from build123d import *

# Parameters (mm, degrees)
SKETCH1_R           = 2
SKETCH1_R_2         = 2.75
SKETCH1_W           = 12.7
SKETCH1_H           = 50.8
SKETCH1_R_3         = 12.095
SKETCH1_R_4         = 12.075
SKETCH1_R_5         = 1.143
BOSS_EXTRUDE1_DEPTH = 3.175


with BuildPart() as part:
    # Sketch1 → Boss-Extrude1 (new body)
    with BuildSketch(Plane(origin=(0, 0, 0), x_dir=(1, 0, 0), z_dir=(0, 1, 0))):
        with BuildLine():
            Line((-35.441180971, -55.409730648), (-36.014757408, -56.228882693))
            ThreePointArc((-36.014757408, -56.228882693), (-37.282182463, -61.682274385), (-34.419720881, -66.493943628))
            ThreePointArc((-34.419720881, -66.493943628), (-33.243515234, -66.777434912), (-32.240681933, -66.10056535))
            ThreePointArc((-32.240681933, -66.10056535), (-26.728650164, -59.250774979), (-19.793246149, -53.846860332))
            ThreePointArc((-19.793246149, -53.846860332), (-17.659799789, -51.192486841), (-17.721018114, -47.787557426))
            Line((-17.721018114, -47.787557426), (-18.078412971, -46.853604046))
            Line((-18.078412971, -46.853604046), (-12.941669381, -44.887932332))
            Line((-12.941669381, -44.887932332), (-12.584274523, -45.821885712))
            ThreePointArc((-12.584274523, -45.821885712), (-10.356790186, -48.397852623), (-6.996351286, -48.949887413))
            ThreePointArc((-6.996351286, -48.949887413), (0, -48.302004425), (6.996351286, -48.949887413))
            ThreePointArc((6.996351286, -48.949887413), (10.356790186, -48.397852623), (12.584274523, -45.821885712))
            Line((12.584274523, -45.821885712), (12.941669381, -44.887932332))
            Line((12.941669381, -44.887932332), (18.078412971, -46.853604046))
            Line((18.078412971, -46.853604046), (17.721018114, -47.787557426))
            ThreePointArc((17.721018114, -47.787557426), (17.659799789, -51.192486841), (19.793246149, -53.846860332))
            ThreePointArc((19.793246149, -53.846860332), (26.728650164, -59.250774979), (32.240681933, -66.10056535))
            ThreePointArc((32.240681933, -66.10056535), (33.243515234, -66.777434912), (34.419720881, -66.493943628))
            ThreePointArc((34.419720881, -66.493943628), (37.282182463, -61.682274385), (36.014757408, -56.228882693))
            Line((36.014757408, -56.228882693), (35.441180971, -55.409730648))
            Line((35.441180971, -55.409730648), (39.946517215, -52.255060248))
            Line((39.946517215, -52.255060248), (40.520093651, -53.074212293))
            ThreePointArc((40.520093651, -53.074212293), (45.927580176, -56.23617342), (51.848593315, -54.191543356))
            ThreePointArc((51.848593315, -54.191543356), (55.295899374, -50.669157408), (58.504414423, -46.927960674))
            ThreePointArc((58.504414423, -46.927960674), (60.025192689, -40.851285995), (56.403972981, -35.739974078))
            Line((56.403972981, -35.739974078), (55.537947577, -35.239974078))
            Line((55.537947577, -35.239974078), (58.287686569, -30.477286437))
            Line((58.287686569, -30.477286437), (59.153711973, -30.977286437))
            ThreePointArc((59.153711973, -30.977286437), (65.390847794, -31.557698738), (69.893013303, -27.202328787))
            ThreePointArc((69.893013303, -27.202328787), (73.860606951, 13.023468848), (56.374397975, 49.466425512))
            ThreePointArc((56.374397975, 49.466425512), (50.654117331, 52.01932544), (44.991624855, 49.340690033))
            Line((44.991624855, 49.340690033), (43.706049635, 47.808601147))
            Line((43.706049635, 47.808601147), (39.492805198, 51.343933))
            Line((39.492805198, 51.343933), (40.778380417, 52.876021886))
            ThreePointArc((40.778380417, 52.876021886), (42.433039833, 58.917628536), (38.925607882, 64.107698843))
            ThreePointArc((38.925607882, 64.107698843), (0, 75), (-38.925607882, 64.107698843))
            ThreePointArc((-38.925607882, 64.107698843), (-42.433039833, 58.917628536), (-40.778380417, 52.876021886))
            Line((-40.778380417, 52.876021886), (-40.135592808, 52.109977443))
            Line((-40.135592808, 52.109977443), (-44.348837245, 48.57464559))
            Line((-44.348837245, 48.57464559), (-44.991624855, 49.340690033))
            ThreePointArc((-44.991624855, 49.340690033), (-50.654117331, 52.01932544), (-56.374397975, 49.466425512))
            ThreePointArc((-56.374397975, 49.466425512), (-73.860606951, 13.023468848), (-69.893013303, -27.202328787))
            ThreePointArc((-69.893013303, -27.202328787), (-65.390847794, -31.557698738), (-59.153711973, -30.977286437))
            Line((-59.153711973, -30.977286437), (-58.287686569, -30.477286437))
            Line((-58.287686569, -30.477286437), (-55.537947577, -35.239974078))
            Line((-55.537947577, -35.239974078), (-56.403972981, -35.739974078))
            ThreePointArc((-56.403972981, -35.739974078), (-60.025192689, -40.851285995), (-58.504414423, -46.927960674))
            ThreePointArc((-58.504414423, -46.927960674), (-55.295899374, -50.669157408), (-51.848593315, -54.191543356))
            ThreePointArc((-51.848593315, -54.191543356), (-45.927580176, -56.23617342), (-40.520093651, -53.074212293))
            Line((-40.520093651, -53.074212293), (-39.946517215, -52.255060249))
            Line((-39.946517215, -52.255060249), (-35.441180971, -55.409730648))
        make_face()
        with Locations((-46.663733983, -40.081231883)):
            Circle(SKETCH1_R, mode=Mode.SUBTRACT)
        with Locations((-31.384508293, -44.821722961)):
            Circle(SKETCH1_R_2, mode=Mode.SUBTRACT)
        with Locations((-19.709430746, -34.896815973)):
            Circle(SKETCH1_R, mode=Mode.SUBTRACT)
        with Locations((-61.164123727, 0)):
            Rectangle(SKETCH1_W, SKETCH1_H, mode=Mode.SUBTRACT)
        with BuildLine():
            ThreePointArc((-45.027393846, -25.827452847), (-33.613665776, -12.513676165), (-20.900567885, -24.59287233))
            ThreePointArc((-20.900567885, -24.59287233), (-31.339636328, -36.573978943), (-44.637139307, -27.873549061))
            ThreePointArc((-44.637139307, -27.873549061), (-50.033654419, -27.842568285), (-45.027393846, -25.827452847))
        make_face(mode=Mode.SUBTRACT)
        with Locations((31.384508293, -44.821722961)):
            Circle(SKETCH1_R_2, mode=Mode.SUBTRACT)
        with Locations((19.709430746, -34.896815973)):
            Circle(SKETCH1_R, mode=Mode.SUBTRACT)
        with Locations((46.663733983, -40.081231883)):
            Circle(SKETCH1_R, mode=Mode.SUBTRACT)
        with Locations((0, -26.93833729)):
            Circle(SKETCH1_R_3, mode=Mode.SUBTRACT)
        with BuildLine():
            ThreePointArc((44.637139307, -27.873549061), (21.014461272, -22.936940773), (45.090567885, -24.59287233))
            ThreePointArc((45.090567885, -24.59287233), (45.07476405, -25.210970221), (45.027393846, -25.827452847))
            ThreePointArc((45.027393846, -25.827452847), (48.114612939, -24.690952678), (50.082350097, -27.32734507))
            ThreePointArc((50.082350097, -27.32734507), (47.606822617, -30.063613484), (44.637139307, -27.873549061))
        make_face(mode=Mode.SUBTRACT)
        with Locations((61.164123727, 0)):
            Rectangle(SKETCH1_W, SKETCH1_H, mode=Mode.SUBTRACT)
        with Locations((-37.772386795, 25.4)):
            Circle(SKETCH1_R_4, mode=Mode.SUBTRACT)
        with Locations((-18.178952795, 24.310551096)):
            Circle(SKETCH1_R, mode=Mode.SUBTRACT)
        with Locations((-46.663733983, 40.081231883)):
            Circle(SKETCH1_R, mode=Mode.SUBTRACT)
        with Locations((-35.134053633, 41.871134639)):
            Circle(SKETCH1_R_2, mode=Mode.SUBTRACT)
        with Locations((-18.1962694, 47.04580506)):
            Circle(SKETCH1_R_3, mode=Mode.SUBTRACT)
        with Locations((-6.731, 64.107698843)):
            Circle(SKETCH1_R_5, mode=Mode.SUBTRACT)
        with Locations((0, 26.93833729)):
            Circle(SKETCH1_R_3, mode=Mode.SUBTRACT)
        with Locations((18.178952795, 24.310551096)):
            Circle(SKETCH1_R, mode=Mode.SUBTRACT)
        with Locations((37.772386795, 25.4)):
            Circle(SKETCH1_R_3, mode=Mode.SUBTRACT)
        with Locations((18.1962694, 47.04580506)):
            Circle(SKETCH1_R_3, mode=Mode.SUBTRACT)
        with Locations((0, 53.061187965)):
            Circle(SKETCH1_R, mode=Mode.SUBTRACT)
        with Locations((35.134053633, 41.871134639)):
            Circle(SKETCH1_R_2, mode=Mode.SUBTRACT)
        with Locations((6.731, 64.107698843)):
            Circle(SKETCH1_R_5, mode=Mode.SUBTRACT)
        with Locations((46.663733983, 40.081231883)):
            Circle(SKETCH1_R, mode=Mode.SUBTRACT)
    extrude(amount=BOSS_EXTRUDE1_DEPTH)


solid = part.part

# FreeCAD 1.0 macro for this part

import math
import FreeCAD as App
import Part
import Sketcher
from FreeCAD import Vector
Q = App.Units.Quantity


def add_polygon(sketch, points):
    """Adds a closed chain of lines whose ends are joined by coincident constraints."""
    first, n = sketch.GeometryCount, len(points)
    for a, b in zip(points, points[1:] + points[:1]):
        sketch.addGeometry(Part.LineSegment(App.Vector(*a, 0), App.Vector(*b, 0)), False)
    for i in range(n):
        sketch.addConstraint(Sketcher.Constraint("Coincident", first + i, 2, first + (i + 1) % n, 1))

doc = App.newDocument("Part")
body = doc.addObject("PartDesign::Body", "Body")

# Sketch on XZ plane
sketch1 = body.newObject("Sketcher::SketchObject", "Sketch")
sketch1.AttachmentSupport = (doc.getObject("XZ_Plane"), [""])
sketch1.MapMode = "FlatFace"
sketch1.addGeometry(Part.LineSegment(Vector(-35.4, 55.4, 0), Vector(-36, 56.2, 0)), False)  # 0
sketch1.addGeometry(Part.ArcOfCircle(Part.Circle(Vector(-29.9, 60.5, 0), Vector(0, 0, 1), 7.5), math.radians(127), math.radians(215)), False)  # 1
sketch1.addGeometry(Part.ArcOfCircle(Part.Circle(Vector(-33.5, 65.3, 0), Vector(0, 0, 1), 1.5), math.radians(32), math.radians(127)), False)  # 2
sketch1.addGeometry(Part.ArcOfCircle(Part.Circle(Vector(0, 86.4, 0), Vector(0, 0, 1), 38.1), math.radians(-148), math.radians(-121)), False)  # 3
sketch1.addGeometry(Part.ArcOfCircle(Part.Circle(Vector(-22.4, 49.6, 0), Vector(0, 0, 1), 5), math.radians(-21), math.radians(59)), False)  # 4
sketch1.addGeometry(Part.LineSegment(Vector(-17.7, 47.8, 0), Vector(-18.1, 46.9, 0)), False)  # 5
sketch1.addGeometry(Part.LineSegment(Vector(-18.1, 46.9, 0), Vector(-12.9, 44.9, 0)), False)  # 6
sketch1.addGeometry(Part.LineSegment(Vector(-12.9, 44.9, 0), Vector(-12.6, 45.8, 0)), False)  # 7
sketch1.addGeometry(Part.ArcOfCircle(Part.Circle(Vector(-7.9, 44, 0), Vector(0, 0, 1), 5), math.radians(79), math.radians(159)), False)  # 8
sketch1.addGeometry(Part.ArcOfCircle(Part.Circle(Vector(0, 86.4, 0), Vector(0, 0, 1), 38.1), math.radians(-101), math.radians(-79)), False)  # 9
sketch1.addGeometry(Part.ArcOfCircle(Part.Circle(Vector(7.9, 44, 0), Vector(0, 0, 1), 5), math.radians(21), math.radians(101)), False)  # 10
sketch1.addGeometry(Part.LineSegment(Vector(12.6, 45.8, 0), Vector(12.9, 44.9, 0)), False)  # 11
sketch1.addGeometry(Part.LineSegment(Vector(12.9, 44.9, 0), Vector(18.1, 46.9, 0)), False)  # 12
sketch1.addGeometry(Part.LineSegment(Vector(18.1, 46.9, 0), Vector(17.7, 47.8, 0)), False)  # 13
sketch1.addGeometry(Part.ArcOfCircle(Part.Circle(Vector(22.4, 49.6, 0), Vector(0, 0, 1), 5), math.radians(121), math.radians(201)), False)  # 14
sketch1.addGeometry(Part.ArcOfCircle(Part.Circle(Vector(0, 86.4, 0), Vector(0, 0, 1), 38.1), math.radians(-59), math.radians(-32)), False)  # 15
sketch1.addGeometry(Part.ArcOfCircle(Part.Circle(Vector(33.5, 65.3, 0), Vector(0, 0, 1), 1.5), math.radians(53), math.radians(148)), False)  # 16
sketch1.addGeometry(Part.ArcOfCircle(Part.Circle(Vector(29.9, 60.5, 0), Vector(0, 0, 1), 7.5), math.radians(-35), math.radians(53)), False)  # 17
sketch1.addGeometry(Part.LineSegment(Vector(36, 56.2, 0), Vector(35.4, 55.4, 0)), False)  # 18
sketch1.addGeometry(Part.LineSegment(Vector(35.4, 55.4, 0), Vector(39.9, 52.3, 0)), False)  # 19
sketch1.addGeometry(Part.LineSegment(Vector(39.9, 52.3, 0), Vector(40.5, 53.1, 0)), False)  # 20
sketch1.addGeometry(Part.ArcOfCircle(Part.Circle(Vector(46.7, 48.8, 0), Vector(0, 0, 1), 7.5), math.radians(46), math.radians(145)), False)  # 21
sketch1.addGeometry(Part.ArcOfCircle(Part.Circle(Vector(0, 0, 0), Vector(0, 0, 1), 75), math.radians(38.73), math.radians(46.27)), False)  # 22
sketch1.addGeometry(Part.ArcOfCircle(Part.Circle(Vector(52.7, 42.2, 0), Vector(0, 0, 1), 7.5), math.radians(-60), math.radians(39)), False)  # 23
sketch1.addGeometry(Part.LineSegment(Vector(56.4, 35.7, 0), Vector(55.5, 35.2, 0)), False)  # 24
sketch1.addGeometry(Part.LineSegment(Vector(55.5, 35.2, 0), Vector(58.3, 30.5, 0)), False)  # 25
sketch1.addGeometry(Part.LineSegment(Vector(58.3, 30.5, 0), Vector(59.2, 31, 0)), False)  # 26
sketch1.addGeometry(Part.ArcOfCircle(Part.Circle(Vector(62.9, 24.5, 0), Vector(0, 0, 1), 7.5), math.radians(21), math.radians(120)), False)  # 27
sketch1.addGeometry(Part.ArcOfCircle(Part.Circle(Vector(0, 0, 0), Vector(0, 0, 1), 75), math.radians(-41), math.radians(21)), False)  # 28
sketch1.addGeometry(Part.ArcOfCircle(Part.Circle(Vector(50.7, -44.5, 0), Vector(0, 0, 1), 7.5), math.radians(-140), math.radians(-41)), False)  # 29
sketch1.addGeometry(Part.LineSegment(Vector(45, -49.3, 0), Vector(43.7, -47.8, 0)), False)  # 30
sketch1.addGeometry(Part.LineSegment(Vector(43.7, -47.8, 0), Vector(39.5, -51.3, 0)), False)  # 31
sketch1.addGeometry(Part.LineSegment(Vector(39.5, -51.3, 0), Vector(40.8, -52.9, 0)), False)  # 32
sketch1.addGeometry(Part.ArcOfCircle(Part.Circle(Vector(35, -57.7, 0), Vector(0, 0, 1), 7.5), math.radians(-59), math.radians(40)), False)  # 33
sketch1.addGeometry(Part.ArcOfCircle(Part.Circle(Vector(0, 0, 0), Vector(0, 0, 1), 75), math.radians(-121), math.radians(-59)), False)  # 34
sketch1.addGeometry(Part.ArcOfCircle(Part.Circle(Vector(-35, -57.7, 0), Vector(0, 0, 1), 7.5), math.radians(140), math.radians(239)), False)  # 35
sketch1.addGeometry(Part.LineSegment(Vector(-40.8, -52.9, 0), Vector(-40.1, -52.1, 0)), False)  # 36
sketch1.addGeometry(Part.LineSegment(Vector(-40.1, -52.1, 0), Vector(-44.3, -48.6, 0)), False)  # 37
sketch1.addGeometry(Part.LineSegment(Vector(-44.3, -48.6, 0), Vector(-45, -49.3, 0)), False)  # 38
sketch1.addGeometry(Part.ArcOfCircle(Part.Circle(Vector(-50.7, -44.5, 0), Vector(0, 0, 1), 7.5), math.radians(-139), math.radians(-40)), False)  # 39
sketch1.addGeometry(Part.ArcOfCircle(Part.Circle(Vector(0, 0, 0), Vector(0, 0, 1), 75), math.radians(159), math.radians(221)), False)  # 40
sketch1.addGeometry(Part.ArcOfCircle(Part.Circle(Vector(-62.9, 24.5, 0), Vector(0, 0, 1), 7.5), math.radians(60), math.radians(159)), False)  # 41
sketch1.addGeometry(Part.LineSegment(Vector(-59.2, 31, 0), Vector(-58.3, 30.5, 0)), False)  # 42
sketch1.addGeometry(Part.LineSegment(Vector(-58.3, 30.5, 0), Vector(-55.5, 35.2, 0)), False)  # 43
sketch1.addGeometry(Part.LineSegment(Vector(-55.5, 35.2, 0), Vector(-56.4, 35.7, 0)), False)  # 44
sketch1.addGeometry(Part.ArcOfCircle(Part.Circle(Vector(-52.7, 42.2, 0), Vector(0, 0, 1), 7.5), math.radians(141), math.radians(240)), False)  # 45
sketch1.addGeometry(Part.ArcOfCircle(Part.Circle(Vector(0, 0, 0), Vector(0, 0, 1), 75), math.radians(133.73), math.radians(141.27)), False)  # 46
sketch1.addGeometry(Part.ArcOfCircle(Part.Circle(Vector(-46.7, 48.8, 0), Vector(0, 0, 1), 7.5), math.radians(35), math.radians(134)), False)  # 47
sketch1.addGeometry(Part.LineSegment(Vector(-40.5, 53.1, 0), Vector(-39.9, 52.3, 0)), False)  # 48
sketch1.addGeometry(Part.LineSegment(Vector(-39.9, 52.3, 0), Vector(-35.4, 55.4, 0)), False)  # 49
sketch1.addGeometry(Part.Circle(Vector(-46.7, 40.1, 0), Vector(0, 0, 1), 2), False)  # 50
sketch1.addGeometry(Part.ArcOfCircle(Part.Circle(Vector(-47.3, 27.3, 0), Vector(0, 0, 1), 2.8), math.radians(11), math.radians(327)), False)  # 51
sketch1.addGeometry(Part.ArcOfCircle(Part.Circle(Vector(-33, 24.6, 0), Vector(0, 0, 1), 12.1), math.radians(174), math.radians(360)), False)  # 52
sketch1.addGeometry(Part.ArcOfCircle(Part.Circle(Vector(-33, 24.6, 0), Vector(0, 0, 1), 12.1), math.radians(0), math.radians(164)), False)  # 53
sketch1.addGeometry(Part.Circle(Vector(-31.4, 44.8, 0), Vector(0, 0, 1), 2.8), False)  # 54
sketch1.addGeometry(Part.Circle(Vector(-19.7, 34.9, 0), Vector(0, 0, 1), 2), False)  # 55
add_polygon(sketch1, [(-54.8, 25.4), (-67.5, 25.4), (-67.5, -25.4), (-54.8, -25.4)])  # lines 56-59
sketch1.addGeometry(Part.Circle(Vector(31.4, 44.8, 0), Vector(0, 0, 1), 2.8), False)  # 60
sketch1.addGeometry(Part.Circle(Vector(19.7, 34.9, 0), Vector(0, 0, 1), 2), False)  # 61
sketch1.addGeometry(Part.Circle(Vector(0, 26.9, 0), Vector(0, 0, 1), 12.1), False)  # 62
sketch1.addGeometry(Part.Circle(Vector(46.7, 40.1, 0), Vector(0, 0, 1), 2), False)  # 63
sketch1.addGeometry(Part.ArcOfCircle(Part.Circle(Vector(47.3, 27.3, 0), Vector(0, 0, 1), 2.8), math.radians(0), math.radians(169)), False)  # 64
sketch1.addGeometry(Part.ArcOfCircle(Part.Circle(Vector(33, 24.6, 0), Vector(0, 0, 1), 12.1), math.radians(16), math.radians(360)), False)  # 65
sketch1.addGeometry(Part.ArcOfCircle(Part.Circle(Vector(33, 24.6, 0), Vector(0, 0, 1), 12.1), math.radians(0), math.radians(5.86)), False)  # 66
sketch1.addGeometry(Part.ArcOfCircle(Part.Circle(Vector(47.3, 27.3, 0), Vector(0, 0, 1), 2.8), math.radians(-147), math.radians(0)), False)  # 67
add_polygon(sketch1, [(67.5, 25.4), (54.8, 25.4), (54.8, -25.4), (67.5, -25.4)])  # lines 68-71
sketch1.addGeometry(Part.Circle(Vector(-37.8, -25.4, 0), Vector(0, 0, 1), 12.1), False)  # 72
sketch1.addGeometry(Part.Circle(Vector(-18.2, -24.3, 0), Vector(0, 0, 1), 2), False)  # 73
sketch1.addGeometry(Part.Circle(Vector(-46.7, -40.1, 0), Vector(0, 0, 1), 2), False)  # 74
sketch1.addGeometry(Part.Circle(Vector(-35.1, -41.9, 0), Vector(0, 0, 1), 2.8), False)  # 75
sketch1.addGeometry(Part.Circle(Vector(-18.2, -47, 0), Vector(0, 0, 1), 12.1), False)  # 76
sketch1.addGeometry(Part.Circle(Vector(-6.7, -64.1, 0), Vector(0, 0, 1), 1.1), False)  # 77
sketch1.addGeometry(Part.Circle(Vector(0, -26.9, 0), Vector(0, 0, 1), 12.1), False)  # 78
sketch1.addGeometry(Part.Circle(Vector(18.2, -24.3, 0), Vector(0, 0, 1), 2), False)  # 79
sketch1.addGeometry(Part.Circle(Vector(37.8, -25.4, 0), Vector(0, 0, 1), 12.1), False)  # 80
sketch1.addGeometry(Part.Circle(Vector(18.2, -47, 0), Vector(0, 0, 1), 12.1), False)  # 81
sketch1.addGeometry(Part.Circle(Vector(0, -53.1, 0), Vector(0, 0, 1), 2), False)  # 82
sketch1.addGeometry(Part.Circle(Vector(6.7, -64.1, 0), Vector(0, 0, 1), 1.1), False)  # 83
sketch1.addGeometry(Part.Circle(Vector(35.1, -41.9, 0), Vector(0, 0, 1), 2.8), False)  # 84
sketch1.addGeometry(Part.Circle(Vector(46.7, -40.1, 0), Vector(0, 0, 1), 2), False)  # 85
sketch1.addConstraint(Sketcher.Constraint("Tangent", 0, 2, 1, 2))
sketch1.addConstraint(Sketcher.Constraint("Tangent", 1, 1, 2, 2))
sketch1.addConstraint(Sketcher.Constraint("Tangent", 2, 1, 3, 1))
sketch1.addConstraint(Sketcher.Constraint("Tangent", 3, 2, 4, 2))
sketch1.addConstraint(Sketcher.Constraint("Tangent", 4, 1, 5, 1))
sketch1.addConstraint(Sketcher.Constraint("Coincident", 5, 2, 6, 1))
sketch1.addConstraint(Sketcher.Constraint("Coincident", 6, 2, 7, 1))
sketch1.addConstraint(Sketcher.Constraint("Tangent", 7, 2, 8, 2))
sketch1.addConstraint(Sketcher.Constraint("Tangent", 8, 1, 9, 1))
sketch1.addConstraint(Sketcher.Constraint("Tangent", 9, 2, 10, 2))
sketch1.addConstraint(Sketcher.Constraint("Tangent", 10, 1, 11, 1))
sketch1.addConstraint(Sketcher.Constraint("Coincident", 11, 2, 12, 1))
sketch1.addConstraint(Sketcher.Constraint("Coincident", 12, 2, 13, 1))
sketch1.addConstraint(Sketcher.Constraint("Tangent", 13, 2, 14, 2))
sketch1.addConstraint(Sketcher.Constraint("Tangent", 14, 1, 15, 1))
sketch1.addConstraint(Sketcher.Constraint("Tangent", 15, 2, 16, 2))
sketch1.addConstraint(Sketcher.Constraint("Tangent", 16, 1, 17, 2))
sketch1.addConstraint(Sketcher.Constraint("Tangent", 17, 1, 18, 1))
sketch1.addConstraint(Sketcher.Constraint("Coincident", 18, 2, 19, 1))
sketch1.addConstraint(Sketcher.Constraint("Coincident", 19, 2, 20, 1))
sketch1.addConstraint(Sketcher.Constraint("Tangent", 20, 2, 21, 2))
sketch1.addConstraint(Sketcher.Constraint("Tangent", 21, 1, 22, 2))
sketch1.addConstraint(Sketcher.Constraint("Tangent", 22, 1, 23, 2))
sketch1.addConstraint(Sketcher.Constraint("Tangent", 23, 1, 24, 1))
sketch1.addConstraint(Sketcher.Constraint("Coincident", 24, 2, 25, 1))
sketch1.addConstraint(Sketcher.Constraint("Coincident", 25, 2, 26, 1))
sketch1.addConstraint(Sketcher.Constraint("Tangent", 26, 2, 27, 2))
sketch1.addConstraint(Sketcher.Constraint("Tangent", 27, 1, 28, 2))
sketch1.addConstraint(Sketcher.Constraint("Tangent", 28, 1, 29, 2))
sketch1.addConstraint(Sketcher.Constraint("Tangent", 29, 1, 30, 1))
sketch1.addConstraint(Sketcher.Constraint("Coincident", 30, 2, 31, 1))
sketch1.addConstraint(Sketcher.Constraint("Coincident", 31, 2, 32, 1))
sketch1.addConstraint(Sketcher.Constraint("Tangent", 32, 2, 33, 2))
sketch1.addConstraint(Sketcher.Constraint("Tangent", 33, 1, 34, 2))
sketch1.addConstraint(Sketcher.Constraint("Tangent", 34, 1, 35, 2))
sketch1.addConstraint(Sketcher.Constraint("Tangent", 35, 1, 36, 1))
sketch1.addConstraint(Sketcher.Constraint("Coincident", 36, 2, 37, 1))
sketch1.addConstraint(Sketcher.Constraint("Coincident", 37, 2, 38, 1))
sketch1.addConstraint(Sketcher.Constraint("Tangent", 38, 2, 39, 2))
sketch1.addConstraint(Sketcher.Constraint("Tangent", 39, 1, 40, 2))
sketch1.addConstraint(Sketcher.Constraint("Tangent", 40, 1, 41, 2))
sketch1.addConstraint(Sketcher.Constraint("Tangent", 41, 1, 42, 1))
sketch1.addConstraint(Sketcher.Constraint("Coincident", 42, 2, 43, 1))
sketch1.addConstraint(Sketcher.Constraint("Coincident", 43, 2, 44, 1))
sketch1.addConstraint(Sketcher.Constraint("Tangent", 44, 2, 45, 2))
sketch1.addConstraint(Sketcher.Constraint("Tangent", 45, 1, 46, 2))
sketch1.addConstraint(Sketcher.Constraint("Tangent", 46, 1, 47, 2))
sketch1.addConstraint(Sketcher.Constraint("Tangent", 47, 1, 48, 1))
sketch1.addConstraint(Sketcher.Constraint("Coincident", 48, 2, 49, 1))
sketch1.addConstraint(Sketcher.Constraint("Coincident", 49, 2, 0, 1))
sketch1.addConstraint(Sketcher.Constraint("Coincident", 51, 2, 52, 1))
sketch1.addConstraint(Sketcher.Constraint("Tangent", 52, 2, 53, 1))
sketch1.addConstraint(Sketcher.Constraint("Coincident", 53, 2, 51, 1))
sketch1.addConstraint(Sketcher.Constraint("Coincident", 64, 2, 65, 1))
sketch1.addConstraint(Sketcher.Constraint("Tangent", 65, 2, 66, 1))
sketch1.addConstraint(Sketcher.Constraint("Coincident", 66, 2, 67, 1))
sketch1.addConstraint(Sketcher.Constraint("Tangent", 67, 2, 64, 1))
sketch1.addConstraint(Sketcher.Constraint("Horizontal", 56))
sketch1.addConstraint(Sketcher.Constraint("Vertical", 57))
sketch1.addConstraint(Sketcher.Constraint("Horizontal", 58))
sketch1.addConstraint(Sketcher.Constraint("Vertical", 59))
sketch1.addConstraint(Sketcher.Constraint("Horizontal", 68))
sketch1.addConstraint(Sketcher.Constraint("Vertical", 69))
sketch1.addConstraint(Sketcher.Constraint("Horizontal", 70))
sketch1.addConstraint(Sketcher.Constraint("Vertical", 71))
sketch1.addConstraint(Sketcher.Constraint("Coincident", 22, 3, -1, 1))
sketch1.addConstraint(Sketcher.Constraint("Coincident", 28, 3, -1, 1))
sketch1.addConstraint(Sketcher.Constraint("Coincident", 34, 3, -1, 1))
sketch1.addConstraint(Sketcher.Constraint("Coincident", 40, 3, -1, 1))
sketch1.addConstraint(Sketcher.Constraint("Coincident", 46, 3, -1, 1))
sketch1.addConstraint(Sketcher.Constraint("Coincident", 9, 3, 3, 3))
sketch1.addConstraint(Sketcher.Constraint("Coincident", 15, 3, 3, 3))
sketch1.addConstraint(Sketcher.Constraint("Equal", 4, 8))
sketch1.addConstraint(Sketcher.Constraint("Equal", 3, 9))
sketch1.addConstraint(Sketcher.Constraint("Equal", 8, 10))
sketch1.addConstraint(Sketcher.Constraint("Equal", 10, 14))
sketch1.addConstraint(Sketcher.Constraint("Equal", 9, 15))
sketch1.addConstraint(Sketcher.Constraint("Equal", 2, 16))
sketch1.addConstraint(Sketcher.Constraint("Equal", 1, 17))
sketch1.addConstraint(Sketcher.Constraint("Equal", 17, 21))
sketch1.addConstraint(Sketcher.Constraint("Equal", 21, 23))
sketch1.addConstraint(Sketcher.Constraint("Equal", 23, 27))
sketch1.addConstraint(Sketcher.Constraint("Equal", 22, 28))
sketch1.addConstraint(Sketcher.Constraint("Equal", 27, 29))
sketch1.addConstraint(Sketcher.Constraint("Equal", 29, 33))
sketch1.addConstraint(Sketcher.Constraint("Equal", 28, 34))
sketch1.addConstraint(Sketcher.Constraint("Equal", 33, 35))
sketch1.addConstraint(Sketcher.Constraint("Equal", 35, 39))
sketch1.addConstraint(Sketcher.Constraint("Equal", 34, 40))
sketch1.addConstraint(Sketcher.Constraint("Equal", 39, 41))
sketch1.addConstraint(Sketcher.Constraint("Equal", 41, 45))
sketch1.addConstraint(Sketcher.Constraint("Equal", 40, 46))
sketch1.addConstraint(Sketcher.Constraint("Equal", 45, 47))
sketch1.addConstraint(Sketcher.Constraint("Equal", 52, 53))
sketch1.addConstraint(Sketcher.Constraint("Equal", 51, 54))
sketch1.addConstraint(Sketcher.Constraint("Equal", 50, 55))
sketch1.addConstraint(Sketcher.Constraint("Equal", 54, 60))
sketch1.addConstraint(Sketcher.Constraint("Equal", 55, 61))
sketch1.addConstraint(Sketcher.Constraint("Equal", 53, 62))
sketch1.addConstraint(Sketcher.Constraint("Equal", 61, 63))
sketch1.addConstraint(Sketcher.Constraint("Equal", 60, 64))
sketch1.addConstraint(Sketcher.Constraint("Equal", 62, 65))
sketch1.addConstraint(Sketcher.Constraint("Equal", 65, 66))
sketch1.addConstraint(Sketcher.Constraint("Equal", 64, 67))
sketch1.addConstraint(Sketcher.Constraint("Equal", 63, 73))
sketch1.addConstraint(Sketcher.Constraint("Equal", 73, 74))
sketch1.addConstraint(Sketcher.Constraint("Equal", 67, 75))
sketch1.addConstraint(Sketcher.Constraint("Equal", 66, 76))
sketch1.addConstraint(Sketcher.Constraint("Equal", 76, 78))
sketch1.addConstraint(Sketcher.Constraint("Equal", 74, 79))
sketch1.addConstraint(Sketcher.Constraint("Equal", 78, 80))
sketch1.addConstraint(Sketcher.Constraint("Equal", 80, 81))
sketch1.addConstraint(Sketcher.Constraint("Equal", 79, 82))
sketch1.addConstraint(Sketcher.Constraint("Equal", 77, 83))
sketch1.addConstraint(Sketcher.Constraint("Equal", 75, 84))
sketch1.addConstraint(Sketcher.Constraint("Equal", 82, 85))
sketch1.addConstraint(Sketcher.Constraint("Symmetric", 63, 3, 74, 3, -1, 1))
sketch1.addConstraint(Sketcher.Constraint("Symmetric", 62, 3, 78, 3, -1, 1))
sketch1.addConstraint(Sketcher.Constraint("Symmetric", 50, 3, 85, 3, -1, 1))
sketch1.addConstraint(Sketcher.Constraint("Symmetric", 58, 2, 68, 2, -1, 1))
sketch1.addConstraint(Sketcher.Constraint("Symmetric", 56, 2, 70, 2, -1, 1))
sketch1.addConstraint(Sketcher.Constraint("Symmetric", 8, 3, 10, 3, -2))
sketch1.addConstraint(Sketcher.Constraint("Symmetric", 1, 3, 17, 3, -2))
sketch1.addConstraint(Sketcher.Constraint("Symmetric", 54, 3, 60, 3, -2))
sketch1.addConstraint(Sketcher.Constraint("Symmetric", 55, 3, 61, 3, -2))
sketch1.addConstraint(Sketcher.Constraint("Symmetric", 50, 3, 63, 3, -2))
sketch1.addConstraint(Sketcher.Constraint("Symmetric", 51, 3, 64, 3, -2))
sketch1.addConstraint(Sketcher.Constraint("Symmetric", 52, 3, 65, 3, -2))
sketch1.addConstraint(Sketcher.Constraint("Symmetric", 73, 3, 79, 3, -2))
sketch1.addConstraint(Sketcher.Constraint("Symmetric", 72, 3, 80, 3, -2))
sketch1.addConstraint(Sketcher.Constraint("Symmetric", 76, 3, 81, 3, -2))
sketch1.addConstraint(Sketcher.Constraint("Symmetric", 77, 3, 83, 3, -2))
sketch1.addConstraint(Sketcher.Constraint("Symmetric", 75, 3, 84, 3, -2))
sketch1.addConstraint(Sketcher.Constraint("Symmetric", 6, 2, 11, 2, -2))
sketch1.addConstraint(Sketcher.Constraint("Symmetric", 5, 2, 12, 2, -2))
sketch1.addConstraint(Sketcher.Constraint("Symmetric", 32, 2, 35, 1, -2))
sketch1.addConstraint(Sketcher.Constraint("Symmetric", 29, 1, 38, 2, -2))
sketch1.addConstraint(Sketcher.Constraint("Symmetric", 26, 2, 41, 1, -2))
sketch1.addConstraint(Sketcher.Constraint("Symmetric", 24, 2, 43, 2, -2))
sketch1.addConstraint(Sketcher.Constraint("Symmetric", 20, 2, 47, 1, -2))
sketch1.addConstraint(Sketcher.Constraint("Symmetric", 18, 2, 49, 2, -2))
sketch1.addConstraint(Sketcher.Constraint("PointOnObject", 62, 3, -2))
sketch1.addConstraint(Sketcher.Constraint("PointOnObject", 82, 3, -2))
sketch1.addConstraint(Sketcher.Constraint("Perpendicular", 5, 6))
sketch1.addConstraint(Sketcher.Constraint("Perpendicular", 6, 7))
sketch1.addConstraint(Sketcher.Constraint("Perpendicular", 12, 13))
sketch1.addConstraint(Sketcher.Constraint("Perpendicular", 18, 19))
sketch1.addConstraint(Sketcher.Constraint("Perpendicular", 19, 20))
sketch1.addConstraint(Sketcher.Constraint("Perpendicular", 24, 25))
sketch1.addConstraint(Sketcher.Constraint("Perpendicular", 25, 26))
sketch1.addConstraint(Sketcher.Constraint("Perpendicular", 30, 31))
sketch1.addConstraint(Sketcher.Constraint("Perpendicular", 31, 32))
sketch1.addConstraint(Sketcher.Constraint("Perpendicular", 36, 37))
sketch1.addConstraint(Sketcher.Constraint("Perpendicular", 42, 43))
sketch1.addConstraint(Sketcher.Constraint("Perpendicular", 43, 44))
sketch1.addConstraint(Sketcher.Constraint("Perpendicular", 48, 49))
sketch1.addConstraint(Sketcher.Constraint("Horizontal", 83, 3, 33, 1))
sketch1.addConstraint(Sketcher.Constraint("Horizontal", 66, 3, 52, 2))
sketch1.addConstraint(Sketcher.Constraint("Horizontal", 80, 3, 57, 2))
sketch1.addConstraint(Sketcher.Constraint("Horizontal", 52, 2, 65, 2))
sketch1.addConstraint(Sketcher.Constraint("Horizontal", 64, 3, 67, 2))
sketch1.addConstraint(Sketcher.Constraint("Horizontal", 59, 2, 68, 2))
sketch1.addConstraint(Sketcher.Constraint("Vertical", 47, 3, 50, 3))
sketch1.addConstraint(Sketcher.Constraint("Equal", 0, 5))
sketch1.addConstraint(Sketcher.Constraint("Equal", 5, 7))
sketch1.addConstraint(Sketcher.Constraint("Equal", 12, 19))
sketch1.addConstraint(Sketcher.Constraint("Equal", 18, 20))
sketch1.addConstraint(Sketcher.Constraint("Equal", 20, 24))
sketch1.addConstraint(Sketcher.Constraint("Equal", 24, 26))
sketch1.addConstraint(Sketcher.Constraint("Equal", 19, 31))
sketch1.addConstraint(Sketcher.Constraint("Equal", 30, 32))
sketch1.addConstraint(Sketcher.Constraint("Equal", 26, 36))
sketch1.addConstraint(Sketcher.Constraint("Diameter", 50, Q("4 mm")))
sketch1.addConstraint(Sketcher.Constraint("Radius", 4, Q("5 mm")))
sketch1.addConstraint(Sketcher.Constraint("Radius", 22, Q("75 mm")))
sketch1.addConstraint(Sketcher.Constraint("Diameter", 54, Q("5.5 mm")))
sketch1.addConstraint(Sketcher.Constraint("Radius", 1, Q("7.5 mm")))
sketch1.addConstraint(Sketcher.Constraint("Radius", 2, Q("1.5 mm")))
sketch1.addConstraint(Sketcher.Constraint("Radius", 3, Q("38.1 mm")))
sketch1.addConstraint(Sketcher.Constraint("Diameter", 62, Q("24.19 mm")))
sketch1.addConstraint(Sketcher.Constraint("Diameter", 72, Q("24.15 mm")))
sketch1.addConstraint(Sketcher.Constraint("Angle", 0, Q("125 deg")))
sketch1.addConstraint(Sketcher.Constraint("Angle", 24, Q("-150 deg")))
sketch1.addConstraint(Sketcher.Constraint("Angle", 30, Q("130 deg")))
sketch1.addConstraint(Sketcher.Constraint("Distance", 0, Q("1 mm")))
sketch1.addConstraint(Sketcher.Constraint("Distance", 30, Q("2 mm")))
sketch1.addConstraint(Sketcher.Constraint("Diameter", 77, Q("2.286 mm")))
sketch1.addConstraint(Sketcher.Constraint("DistanceX", 56, 2, 56, 1, Q("12.7 mm")))
sketch1.addConstraint(Sketcher.Constraint("DistanceY", 57, 2, 57, 1, Q("50.8 mm")))
sketch1.addConstraint(Sketcher.Constraint("Distance", 6, Q("5.5 mm")))
sketch1.addConstraint(Sketcher.Constraint("DistanceX", 2, 3, -1, 1, Q("33.51 mm")))
sketch1.addConstraint(Sketcher.Constraint("DistanceX", 77, 3, -1, 1, Q("6.731 mm")))
sketch1.addConstraint(Sketcher.Constraint("DistanceY", -1, 1, 4, 3, Q("49.574532 mm")))
sketch1.addConstraint(Sketcher.Constraint("DistanceY", -1, 1, 8, 3, Q("44.034911 mm")))
sketch1.addConstraint(Sketcher.Constraint("DistanceX", -1, 1, 27, 3, Q("62.903712 mm")))
sketch1.addConstraint(Sketcher.Constraint("DistanceY", -1, 1, 50, 3, Q("40.081232 mm")))
sketch1.addConstraint(Sketcher.Constraint("DistanceX", 51, 3, -1, 1, Q("47.33235 mm")))
sketch1.addConstraint(Sketcher.Constraint("DistanceX", 54, 3, -1, 1, Q("31.384508 mm")))
sketch1.addConstraint(Sketcher.Constraint("DistanceX", 55, 3, -1, 1, Q("19.709431 mm")))
sketch1.addConstraint(Sketcher.Constraint("DistanceY", 73, 3, -1, 1, Q("24.310551 mm")))
sketch1.addConstraint(Sketcher.Constraint("DistanceX", 76, 3, -1, 1, Q("18.196269 mm")))
sketch1.addConstraint(Sketcher.Constraint("DistanceX", 53, 2, -1, 1, Q("44.637139 mm")))
sketch1.addConstraint(Sketcher.Constraint("DistanceY", -1, 1, 53, 2, Q("27.873549 mm")))
sketch1.addConstraint(Sketcher.Constraint("DistanceX", 52, 3, -1, 1, Q("32.995568 mm")))
sketch1.addConstraint(Sketcher.Constraint("DistanceY", -1, 1, 54, 3, Q("44.821723 mm")))
sketch1.addConstraint(Sketcher.Constraint("DistanceY", -1, 1, 55, 3, Q("34.896816 mm")))
sketch1.addConstraint(Sketcher.Constraint("DistanceY", -1, 1, 62, 3, Q("26.938337 mm")))
sketch1.addConstraint(Sketcher.Constraint("DistanceX", 72, 3, -1, 1, Q("37.772387 mm")))
sketch1.addConstraint(Sketcher.Constraint("DistanceX", 73, 3, -1, 1, Q("18.178953 mm")))
sketch1.addConstraint(Sketcher.Constraint("DistanceX", 75, 3, -1, 1, Q("35.134054 mm")))
sketch1.addConstraint(Sketcher.Constraint("DistanceY", 75, 3, -1, 1, Q("41.871135 mm")))
sketch1.addConstraint(Sketcher.Constraint("DistanceY", 76, 3, -1, 1, Q("47.045805 mm")))
sketch1.addConstraint(Sketcher.Constraint("DistanceY", 82, 3, -1, 1, Q("53.061188 mm")))
sketch1.addConstraint(Sketcher.Constraint("DistanceX", 56, 2, -1, 1, Q("67.514124 mm")))
pad1 = body.newObject("PartDesign::Pad", "Pad")
pad1.Profile = sketch1
pad1.Length = 3.175
pad1.Reversed = True

doc.recompute()
